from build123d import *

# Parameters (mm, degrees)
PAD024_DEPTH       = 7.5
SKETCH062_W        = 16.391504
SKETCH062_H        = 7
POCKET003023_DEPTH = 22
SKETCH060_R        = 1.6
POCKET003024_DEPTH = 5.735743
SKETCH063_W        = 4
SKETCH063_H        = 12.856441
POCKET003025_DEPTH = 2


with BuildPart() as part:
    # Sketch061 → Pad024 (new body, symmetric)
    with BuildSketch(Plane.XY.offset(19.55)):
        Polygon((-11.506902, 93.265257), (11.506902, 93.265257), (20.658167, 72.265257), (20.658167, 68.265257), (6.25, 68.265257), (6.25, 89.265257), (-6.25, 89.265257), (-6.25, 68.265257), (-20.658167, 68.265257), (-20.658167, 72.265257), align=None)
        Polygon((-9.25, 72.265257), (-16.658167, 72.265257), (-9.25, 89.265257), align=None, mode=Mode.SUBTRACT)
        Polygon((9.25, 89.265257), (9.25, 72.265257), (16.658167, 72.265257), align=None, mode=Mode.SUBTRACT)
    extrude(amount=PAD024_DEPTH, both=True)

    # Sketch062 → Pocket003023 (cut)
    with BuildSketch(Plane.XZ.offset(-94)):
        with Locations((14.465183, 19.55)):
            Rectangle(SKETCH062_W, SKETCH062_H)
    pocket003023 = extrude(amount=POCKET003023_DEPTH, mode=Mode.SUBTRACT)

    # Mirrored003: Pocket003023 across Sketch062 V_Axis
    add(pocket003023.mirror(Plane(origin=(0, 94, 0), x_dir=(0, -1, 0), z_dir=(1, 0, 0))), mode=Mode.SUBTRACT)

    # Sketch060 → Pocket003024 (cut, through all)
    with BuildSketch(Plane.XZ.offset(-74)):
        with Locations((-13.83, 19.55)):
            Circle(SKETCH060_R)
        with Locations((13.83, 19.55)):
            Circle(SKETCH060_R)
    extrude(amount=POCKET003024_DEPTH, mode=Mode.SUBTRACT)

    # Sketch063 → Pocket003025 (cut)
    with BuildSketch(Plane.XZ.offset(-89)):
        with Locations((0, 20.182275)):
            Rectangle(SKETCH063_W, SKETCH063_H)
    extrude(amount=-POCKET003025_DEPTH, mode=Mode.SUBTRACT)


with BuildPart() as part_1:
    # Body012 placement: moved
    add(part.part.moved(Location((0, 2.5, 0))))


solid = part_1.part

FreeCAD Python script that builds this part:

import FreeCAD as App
import Part
import Sketcher
from FreeCAD import Vector

doc = App.newDocument("Part")
body = doc.addObject("PartDesign::Body", "Body")

sketch1 = body.newObject("Sketcher::SketchObject", "Sketch")
sketch1.AttachmentSupport = (doc.getObject("XY_Plane"), [""])
sketch1.MapMode = "FlatFace"
sketch1.AttachmentOffset = App.Placement(Vector(0, 0, 19.55), App.Rotation())
sketch1.addGeometry(Part.LineSegment(Vector(11.5, 93.3, 0), Vector(-11.5, 93.3, 0)), False)
sketch1.addGeometry(Part.LineSegment(Vector(-11.5, 93.3, 0), Vector(-20.7, 72.3, 0)), False)
sketch1.addGeometry(Part.LineSegment(Vector(-20.7, 72.3, 0), Vector(-20.7, 68.3, 0)), False)
sketch1.addGeometry(Part.LineSegment(Vector(-20.7, 68.3, 0), Vector(-6.2, 68.3, 0)), False)
sketch1.addGeometry(Part.LineSegment(Vector(-6.2, 68.3, 0), Vector(-6.2, 89.3, 0)), False)
sketch1.addGeometry(Part.LineSegment(Vector(-6.2, 89.3, 0), Vector(6.2, 89.3, 0)), False)
sketch1.addGeometry(Part.LineSegment(Vector(6.2, 89.3, 0), Vector(6.2, 68.3, 0)), False)
sketch1.addGeometry(Part.LineSegment(Vector(6.2, 68.3, 0), Vector(20.7, 68.3, 0)), False)
sketch1.addGeometry(Part.LineSegment(Vector(20.7, 68.3, 0), Vector(20.7, 72.3, 0)), False)
sketch1.addGeometry(Part.LineSegment(Vector(20.7, 72.3, 0), Vector(11.5, 93.3, 0)), False)
sketch1.addGeometry(Part.LineSegment(Vector(9.2, 89.3, 0), Vector(16.7, 72.3, 0)), False)
sketch1.addGeometry(Part.LineSegment(Vector(16.7, 72.3, 0), Vector(9.2, 72.3, 0)), False)
sketch1.addGeometry(Part.LineSegment(Vector(9.2, 72.3, 0), Vector(9.2, 89.3, 0)), False)
sketch1.addGeometry(Part.LineSegment(Vector(-9.2, 72.3, 0), Vector(-16.7, 72.3, 0)), False)
sketch1.addGeometry(Part.LineSegment(Vector(-16.7, 72.3, 0), Vector(-9.2, 89.3, 0)), False)
sketch1.addGeometry(Part.LineSegment(Vector(-9.2, 89.3, 0), Vector(-9.2, 72.3, 0)), False)
sketch1.addConstraint(Sketcher.Constraint("Coincident", 0, 2, 1, 1))
sketch1.addConstraint(Sketcher.Constraint("Coincident", 1, 2, 2, 1))
sketch1.addConstraint(Sketcher.Constraint("Coincident", 2, 2, 3, 1))
sketch1.addConstraint(Sketcher.Constraint("Coincident", 3, 2, 4, 1))
sketch1.addConstraint(Sketcher.Constraint("Coincident", 4, 2, 5, 1))
sketch1.addConstraint(Sketcher.Constraint("Coincident", 5, 2, 6, 1))
sketch1.addConstraint(Sketcher.Constraint("Coincident", 6, 2, 7, 1))
sketch1.addConstraint(Sketcher.Constraint("Coincident", 7, 2, 8, 1))
sketch1.addConstraint(Sketcher.Constraint("Coincident", 8, 2, 9, 1))
sketch1.addConstraint(Sketcher.Constraint("Coincident", 9, 2, 0, 1))
sketch1.addConstraint(Sketcher.Constraint("Coincident", 10, 2, 11, 1))
sketch1.addConstraint(Sketcher.Constraint("Coincident", 11, 2, 12, 1))
sketch1.addConstraint(Sketcher.Constraint("Coincident", 12, 2, 10, 1))
sketch1.addConstraint(Sketcher.Constraint("Coincident", 13, 2, 14, 1))
sketch1.addConstraint(Sketcher.Constraint("Coincident", 14, 2, 15, 1))
sketch1.addConstraint(Sketcher.Constraint("Coincident", 15, 2, 13, 1))
sketch1.addConstraint(Sketcher.Constraint("Horizontal", 0))
sketch1.addConstraint(Sketcher.Constraint("Vertical", 2))
sketch1.addConstraint(Sketcher.Constraint("Horizontal", 3))
sketch1.addConstraint(Sketcher.Constraint("Vertical", 4))
sketch1.addConstraint(Sketcher.Constraint("Horizontal", 5))
sketch1.addConstraint(Sketcher.Constraint("Vertical", 6))
sketch1.addConstraint(Sketcher.Constraint("Horizontal", 7))
sketch1.addConstraint(Sketcher.Constraint("Vertical", 8))
sketch1.addConstraint(Sketcher.Constraint("Horizontal", 11))
sketch1.addConstraint(Sketcher.Constraint("Vertical", 12))
sketch1.addConstraint(Sketcher.Constraint("Horizontal", 13))
sketch1.addConstraint(Sketcher.Constraint("Vertical", 15))
sketch1.addConstraint(Sketcher.Constraint("Symmetric", 3, 2, 6, 2, -2))
sketch1.addConstraint(Sketcher.Constraint("Symmetric", 1, 2, 8, 2, -2))
sketch1.addConstraint(Sketcher.Constraint("Symmetric", 10, 2, 13, 2, -2))
sketch1.addConstraint(Sketcher.Constraint("Symmetric", 12, 2, 14, 2, -2))
sketch1.addConstraint(Sketcher.Constraint("Parallel", 9, 10))
sketch1.addConstraint(Sketcher.Constraint("Parallel", 1, 14))
sketch1.addConstraint(Sketcher.Constraint("Horizontal", 8, 2, 10, 2))
sketch1.addConstraint(Sketcher.Constraint("Horizontal", 5, 2, 12, 2))
sketch1.addConstraint(Sketcher.Constraint("DistanceY", 2, 2, 2, 1, 4.0))
sketch1.addConstraint(Sketcher.Constraint("DistanceY", 4, 1, 4, 2, 21.0))
sketch1.addConstraint(Sketcher.Constraint("DistanceX", 5, 1, 5, 2, 12.5))
sketch1.addConstraint(Sketcher.Constraint("DistanceY", 1, 2, 0, 2, 21.0))
sketch1.addConstraint(Sketcher.Constraint("DistanceX", 10, 2, 8, 2, 4.0))
sketch1.addConstraint(Sketcher.Constraint("DistanceX", 6, 2, 11, 2, 3.0))
sketch1.addConstraint(Sketcher.Constraint("DistanceX", 0, 2, 5, 2, 17.756902))
sketch1.addConstraint(Sketcher.Constraint("DistanceY", -1, 1, 0, 2, 93.265257))
pad1 = body.newObject("PartDesign::Pad", "Pad")
pad1.Profile = sketch1
pad1.Length = 15
pad1.Midplane = True

sketch2 = body.newObject("Sketcher::SketchObject", "Sketch001")
sketch2.AttachmentSupport = (doc.getObject("XZ_Plane"), [""])
sketch2.MapMode = "FlatFace"
sketch2.AttachmentOffset = App.Placement(Vector(0, 0, -94), App.Rotation())
sketch2.addGeometry(Part.LineSegment(Vector(6, 23, 0), Vector(6, 16, 0)), False)
sketch2.addGeometry(Part.LineSegment(Vector(6, 16, 0), Vector(23, 16, 0)), False)
sketch2.addGeometry(Part.LineSegment(Vector(23, 16, 0), Vector(23, 23, 0)), False)
sketch2.addGeometry(Part.LineSegment(Vector(23, 23, 0), Vector(6, 23, 0)), False)
sketch2.addConstraint(Sketcher.Constraint("Coincident", 0, 2, 1, 1))
sketch2.addConstraint(Sketcher.Constraint("Coincident", 1, 2, 2, 1))
sketch2.addConstraint(Sketcher.Constraint("Coincident", 2, 2, 3, 1))
sketch2.addConstraint(Sketcher.Constraint("Coincident", 3, 2, 0, 1))
sketch2.addConstraint(Sketcher.Constraint("Vertical", 0))
sketch2.addConstraint(Sketcher.Constraint("Horizontal", 1))
sketch2.addConstraint(Sketcher.Constraint("Vertical", 2))
sketch2.addConstraint(Sketcher.Constraint("Horizontal", 3))
sketch2.addConstraint(Sketcher.Constraint("DistanceY", 0, 2, 0, 1, 7.0))
sketch2.addConstraint(Sketcher.Constraint("DistanceY", -1, 1, 0, 2, 16.05))
sketch2.addConstraint(Sketcher.Constraint("DistanceX", 1, 1, 1, 2, 16.391504))
sketch2.addConstraint(Sketcher.Constraint("DistanceX", -1, 1, 0, 2, 6.269431))
pocket1 = body.newObject("PartDesign::Pocket", "Pocket")
pocket1.Profile = sketch2
pocket1.Length = 22
pocket1.Reversed = True
doc.recompute()

mirrored = body.newObject("PartDesign::Mirrored", "Mirrored")
mirrored.Originals = [pocket1]
mirrored.MirrorPlane = (doc.getObject("YZ_Plane"), [""])
body.Tip = mirrored

sketch3 = body.newObject("Sketcher::SketchObject", "Sketch002")
sketch3.AttachmentSupport = (doc.getObject("XZ_Plane"), [""])
sketch3.MapMode = "FlatFace"
sketch3.AttachmentOffset = App.Placement(Vector(0, 0, -74), App.Rotation())
sketch3.addGeometry(Part.Circle(Vector(-13.8, 19.6, 0), Vector(0, 0, 1), 1.6), False)
sketch3.addGeometry(Part.Circle(Vector(13.8, 19.6, 0), Vector(0, 0, 1), 1.6), False)
sketch3.addConstraint(Sketcher.Constraint("Equal", 0, 1))
sketch3.addConstraint(Sketcher.Constraint("Symmetric", 0, 3, 1, 3, -2))
sketch3.addConstraint(Sketcher.Constraint("Diameter", 0, 3.2))
sketch3.addConstraint(Sketcher.Constraint("DistanceX", 0, 3, -1, 1, 13.83))
sketch3.addConstraint(Sketcher.Constraint("DistanceY", -1, 1, 0, 3, 19.55))
pocket2 = body.newObject("PartDesign::Pocket", "Pocket001")
pocket2.Profile = sketch3
pocket2.Type = "ThroughAll"
pocket2.Reversed = True

sketch4 = body.newObject("Sketcher::SketchObject", "Sketch003")
sketch4.AttachmentSupport = (doc.getObject("XZ_Plane"), [""])
sketch4.MapMode = "FlatFace"
sketch4.AttachmentOffset = App.Placement(Vector(0, 0, -89), App.Rotation())
sketch4.addGeometry(Part.LineSegment(Vector(-2, 26.6, 0), Vector(-2, 13.8, 0)), False)
sketch4.addGeometry(Part.LineSegment(Vector(-2, 13.8, 0), Vector(2, 13.8, 0)), False)
sketch4.addGeometry(Part.LineSegment(Vector(2, 13.8, 0), Vector(2, 26.6, 0)), False)
sketch4.addGeometry(Part.LineSegment(Vector(2, 26.6, 0), Vector(-2, 26.6, 0)), False)
sketch4.addConstraint(Sketcher.Constraint("Coincident", 0, 2, 1, 1))
sketch4.addConstraint(Sketcher.Constraint("Coincident", 1, 2, 2, 1))
sketch4.addConstraint(Sketcher.Constraint("Coincident", 2, 2, 3, 1))
sketch4.addConstraint(Sketcher.Constraint("Coincident", 3, 2, 0, 1))
sketch4.addConstraint(Sketcher.Constraint("Vertical", 0))
sketch4.addConstraint(Sketcher.Constraint("Horizontal", 1))
sketch4.addConstraint(Sketcher.Constraint("Vertical", 2))
sketch4.addConstraint(Sketcher.Constraint("Horizontal", 3))
sketch4.addConstraint(Sketcher.Constraint("DistanceX", 1, 1, 1, 2, 4.0))
sketch4.addConstraint(Sketcher.Constraint("DistanceX", 0, 2, -1, 1, 2.0))
sketch4.addConstraint(Sketcher.Constraint("DistanceY", 0, 2, 0, 1, 12.856441))
sketch4.addConstraint(Sketcher.Constraint("DistanceY", -1, 1, 0, 2, 13.754055))
pocket3 = body.newObject("PartDesign::Pocket", "Pocket002")
pocket3.Profile = sketch4
pocket3.Length = 2
body2 = doc.addObject("PartDesign::Body", "Body001")
doc.recompute()

body.Placement = App.Placement(Vector(0, 2.5, 0), App.Rotation(Vector(0, 0, 1), 0))
boolean = body2.newObject("PartDesign::Boolean", "Boolean")
boolean.Type = "Fuse"
boolean.addObjects([body])

doc.recompute()
